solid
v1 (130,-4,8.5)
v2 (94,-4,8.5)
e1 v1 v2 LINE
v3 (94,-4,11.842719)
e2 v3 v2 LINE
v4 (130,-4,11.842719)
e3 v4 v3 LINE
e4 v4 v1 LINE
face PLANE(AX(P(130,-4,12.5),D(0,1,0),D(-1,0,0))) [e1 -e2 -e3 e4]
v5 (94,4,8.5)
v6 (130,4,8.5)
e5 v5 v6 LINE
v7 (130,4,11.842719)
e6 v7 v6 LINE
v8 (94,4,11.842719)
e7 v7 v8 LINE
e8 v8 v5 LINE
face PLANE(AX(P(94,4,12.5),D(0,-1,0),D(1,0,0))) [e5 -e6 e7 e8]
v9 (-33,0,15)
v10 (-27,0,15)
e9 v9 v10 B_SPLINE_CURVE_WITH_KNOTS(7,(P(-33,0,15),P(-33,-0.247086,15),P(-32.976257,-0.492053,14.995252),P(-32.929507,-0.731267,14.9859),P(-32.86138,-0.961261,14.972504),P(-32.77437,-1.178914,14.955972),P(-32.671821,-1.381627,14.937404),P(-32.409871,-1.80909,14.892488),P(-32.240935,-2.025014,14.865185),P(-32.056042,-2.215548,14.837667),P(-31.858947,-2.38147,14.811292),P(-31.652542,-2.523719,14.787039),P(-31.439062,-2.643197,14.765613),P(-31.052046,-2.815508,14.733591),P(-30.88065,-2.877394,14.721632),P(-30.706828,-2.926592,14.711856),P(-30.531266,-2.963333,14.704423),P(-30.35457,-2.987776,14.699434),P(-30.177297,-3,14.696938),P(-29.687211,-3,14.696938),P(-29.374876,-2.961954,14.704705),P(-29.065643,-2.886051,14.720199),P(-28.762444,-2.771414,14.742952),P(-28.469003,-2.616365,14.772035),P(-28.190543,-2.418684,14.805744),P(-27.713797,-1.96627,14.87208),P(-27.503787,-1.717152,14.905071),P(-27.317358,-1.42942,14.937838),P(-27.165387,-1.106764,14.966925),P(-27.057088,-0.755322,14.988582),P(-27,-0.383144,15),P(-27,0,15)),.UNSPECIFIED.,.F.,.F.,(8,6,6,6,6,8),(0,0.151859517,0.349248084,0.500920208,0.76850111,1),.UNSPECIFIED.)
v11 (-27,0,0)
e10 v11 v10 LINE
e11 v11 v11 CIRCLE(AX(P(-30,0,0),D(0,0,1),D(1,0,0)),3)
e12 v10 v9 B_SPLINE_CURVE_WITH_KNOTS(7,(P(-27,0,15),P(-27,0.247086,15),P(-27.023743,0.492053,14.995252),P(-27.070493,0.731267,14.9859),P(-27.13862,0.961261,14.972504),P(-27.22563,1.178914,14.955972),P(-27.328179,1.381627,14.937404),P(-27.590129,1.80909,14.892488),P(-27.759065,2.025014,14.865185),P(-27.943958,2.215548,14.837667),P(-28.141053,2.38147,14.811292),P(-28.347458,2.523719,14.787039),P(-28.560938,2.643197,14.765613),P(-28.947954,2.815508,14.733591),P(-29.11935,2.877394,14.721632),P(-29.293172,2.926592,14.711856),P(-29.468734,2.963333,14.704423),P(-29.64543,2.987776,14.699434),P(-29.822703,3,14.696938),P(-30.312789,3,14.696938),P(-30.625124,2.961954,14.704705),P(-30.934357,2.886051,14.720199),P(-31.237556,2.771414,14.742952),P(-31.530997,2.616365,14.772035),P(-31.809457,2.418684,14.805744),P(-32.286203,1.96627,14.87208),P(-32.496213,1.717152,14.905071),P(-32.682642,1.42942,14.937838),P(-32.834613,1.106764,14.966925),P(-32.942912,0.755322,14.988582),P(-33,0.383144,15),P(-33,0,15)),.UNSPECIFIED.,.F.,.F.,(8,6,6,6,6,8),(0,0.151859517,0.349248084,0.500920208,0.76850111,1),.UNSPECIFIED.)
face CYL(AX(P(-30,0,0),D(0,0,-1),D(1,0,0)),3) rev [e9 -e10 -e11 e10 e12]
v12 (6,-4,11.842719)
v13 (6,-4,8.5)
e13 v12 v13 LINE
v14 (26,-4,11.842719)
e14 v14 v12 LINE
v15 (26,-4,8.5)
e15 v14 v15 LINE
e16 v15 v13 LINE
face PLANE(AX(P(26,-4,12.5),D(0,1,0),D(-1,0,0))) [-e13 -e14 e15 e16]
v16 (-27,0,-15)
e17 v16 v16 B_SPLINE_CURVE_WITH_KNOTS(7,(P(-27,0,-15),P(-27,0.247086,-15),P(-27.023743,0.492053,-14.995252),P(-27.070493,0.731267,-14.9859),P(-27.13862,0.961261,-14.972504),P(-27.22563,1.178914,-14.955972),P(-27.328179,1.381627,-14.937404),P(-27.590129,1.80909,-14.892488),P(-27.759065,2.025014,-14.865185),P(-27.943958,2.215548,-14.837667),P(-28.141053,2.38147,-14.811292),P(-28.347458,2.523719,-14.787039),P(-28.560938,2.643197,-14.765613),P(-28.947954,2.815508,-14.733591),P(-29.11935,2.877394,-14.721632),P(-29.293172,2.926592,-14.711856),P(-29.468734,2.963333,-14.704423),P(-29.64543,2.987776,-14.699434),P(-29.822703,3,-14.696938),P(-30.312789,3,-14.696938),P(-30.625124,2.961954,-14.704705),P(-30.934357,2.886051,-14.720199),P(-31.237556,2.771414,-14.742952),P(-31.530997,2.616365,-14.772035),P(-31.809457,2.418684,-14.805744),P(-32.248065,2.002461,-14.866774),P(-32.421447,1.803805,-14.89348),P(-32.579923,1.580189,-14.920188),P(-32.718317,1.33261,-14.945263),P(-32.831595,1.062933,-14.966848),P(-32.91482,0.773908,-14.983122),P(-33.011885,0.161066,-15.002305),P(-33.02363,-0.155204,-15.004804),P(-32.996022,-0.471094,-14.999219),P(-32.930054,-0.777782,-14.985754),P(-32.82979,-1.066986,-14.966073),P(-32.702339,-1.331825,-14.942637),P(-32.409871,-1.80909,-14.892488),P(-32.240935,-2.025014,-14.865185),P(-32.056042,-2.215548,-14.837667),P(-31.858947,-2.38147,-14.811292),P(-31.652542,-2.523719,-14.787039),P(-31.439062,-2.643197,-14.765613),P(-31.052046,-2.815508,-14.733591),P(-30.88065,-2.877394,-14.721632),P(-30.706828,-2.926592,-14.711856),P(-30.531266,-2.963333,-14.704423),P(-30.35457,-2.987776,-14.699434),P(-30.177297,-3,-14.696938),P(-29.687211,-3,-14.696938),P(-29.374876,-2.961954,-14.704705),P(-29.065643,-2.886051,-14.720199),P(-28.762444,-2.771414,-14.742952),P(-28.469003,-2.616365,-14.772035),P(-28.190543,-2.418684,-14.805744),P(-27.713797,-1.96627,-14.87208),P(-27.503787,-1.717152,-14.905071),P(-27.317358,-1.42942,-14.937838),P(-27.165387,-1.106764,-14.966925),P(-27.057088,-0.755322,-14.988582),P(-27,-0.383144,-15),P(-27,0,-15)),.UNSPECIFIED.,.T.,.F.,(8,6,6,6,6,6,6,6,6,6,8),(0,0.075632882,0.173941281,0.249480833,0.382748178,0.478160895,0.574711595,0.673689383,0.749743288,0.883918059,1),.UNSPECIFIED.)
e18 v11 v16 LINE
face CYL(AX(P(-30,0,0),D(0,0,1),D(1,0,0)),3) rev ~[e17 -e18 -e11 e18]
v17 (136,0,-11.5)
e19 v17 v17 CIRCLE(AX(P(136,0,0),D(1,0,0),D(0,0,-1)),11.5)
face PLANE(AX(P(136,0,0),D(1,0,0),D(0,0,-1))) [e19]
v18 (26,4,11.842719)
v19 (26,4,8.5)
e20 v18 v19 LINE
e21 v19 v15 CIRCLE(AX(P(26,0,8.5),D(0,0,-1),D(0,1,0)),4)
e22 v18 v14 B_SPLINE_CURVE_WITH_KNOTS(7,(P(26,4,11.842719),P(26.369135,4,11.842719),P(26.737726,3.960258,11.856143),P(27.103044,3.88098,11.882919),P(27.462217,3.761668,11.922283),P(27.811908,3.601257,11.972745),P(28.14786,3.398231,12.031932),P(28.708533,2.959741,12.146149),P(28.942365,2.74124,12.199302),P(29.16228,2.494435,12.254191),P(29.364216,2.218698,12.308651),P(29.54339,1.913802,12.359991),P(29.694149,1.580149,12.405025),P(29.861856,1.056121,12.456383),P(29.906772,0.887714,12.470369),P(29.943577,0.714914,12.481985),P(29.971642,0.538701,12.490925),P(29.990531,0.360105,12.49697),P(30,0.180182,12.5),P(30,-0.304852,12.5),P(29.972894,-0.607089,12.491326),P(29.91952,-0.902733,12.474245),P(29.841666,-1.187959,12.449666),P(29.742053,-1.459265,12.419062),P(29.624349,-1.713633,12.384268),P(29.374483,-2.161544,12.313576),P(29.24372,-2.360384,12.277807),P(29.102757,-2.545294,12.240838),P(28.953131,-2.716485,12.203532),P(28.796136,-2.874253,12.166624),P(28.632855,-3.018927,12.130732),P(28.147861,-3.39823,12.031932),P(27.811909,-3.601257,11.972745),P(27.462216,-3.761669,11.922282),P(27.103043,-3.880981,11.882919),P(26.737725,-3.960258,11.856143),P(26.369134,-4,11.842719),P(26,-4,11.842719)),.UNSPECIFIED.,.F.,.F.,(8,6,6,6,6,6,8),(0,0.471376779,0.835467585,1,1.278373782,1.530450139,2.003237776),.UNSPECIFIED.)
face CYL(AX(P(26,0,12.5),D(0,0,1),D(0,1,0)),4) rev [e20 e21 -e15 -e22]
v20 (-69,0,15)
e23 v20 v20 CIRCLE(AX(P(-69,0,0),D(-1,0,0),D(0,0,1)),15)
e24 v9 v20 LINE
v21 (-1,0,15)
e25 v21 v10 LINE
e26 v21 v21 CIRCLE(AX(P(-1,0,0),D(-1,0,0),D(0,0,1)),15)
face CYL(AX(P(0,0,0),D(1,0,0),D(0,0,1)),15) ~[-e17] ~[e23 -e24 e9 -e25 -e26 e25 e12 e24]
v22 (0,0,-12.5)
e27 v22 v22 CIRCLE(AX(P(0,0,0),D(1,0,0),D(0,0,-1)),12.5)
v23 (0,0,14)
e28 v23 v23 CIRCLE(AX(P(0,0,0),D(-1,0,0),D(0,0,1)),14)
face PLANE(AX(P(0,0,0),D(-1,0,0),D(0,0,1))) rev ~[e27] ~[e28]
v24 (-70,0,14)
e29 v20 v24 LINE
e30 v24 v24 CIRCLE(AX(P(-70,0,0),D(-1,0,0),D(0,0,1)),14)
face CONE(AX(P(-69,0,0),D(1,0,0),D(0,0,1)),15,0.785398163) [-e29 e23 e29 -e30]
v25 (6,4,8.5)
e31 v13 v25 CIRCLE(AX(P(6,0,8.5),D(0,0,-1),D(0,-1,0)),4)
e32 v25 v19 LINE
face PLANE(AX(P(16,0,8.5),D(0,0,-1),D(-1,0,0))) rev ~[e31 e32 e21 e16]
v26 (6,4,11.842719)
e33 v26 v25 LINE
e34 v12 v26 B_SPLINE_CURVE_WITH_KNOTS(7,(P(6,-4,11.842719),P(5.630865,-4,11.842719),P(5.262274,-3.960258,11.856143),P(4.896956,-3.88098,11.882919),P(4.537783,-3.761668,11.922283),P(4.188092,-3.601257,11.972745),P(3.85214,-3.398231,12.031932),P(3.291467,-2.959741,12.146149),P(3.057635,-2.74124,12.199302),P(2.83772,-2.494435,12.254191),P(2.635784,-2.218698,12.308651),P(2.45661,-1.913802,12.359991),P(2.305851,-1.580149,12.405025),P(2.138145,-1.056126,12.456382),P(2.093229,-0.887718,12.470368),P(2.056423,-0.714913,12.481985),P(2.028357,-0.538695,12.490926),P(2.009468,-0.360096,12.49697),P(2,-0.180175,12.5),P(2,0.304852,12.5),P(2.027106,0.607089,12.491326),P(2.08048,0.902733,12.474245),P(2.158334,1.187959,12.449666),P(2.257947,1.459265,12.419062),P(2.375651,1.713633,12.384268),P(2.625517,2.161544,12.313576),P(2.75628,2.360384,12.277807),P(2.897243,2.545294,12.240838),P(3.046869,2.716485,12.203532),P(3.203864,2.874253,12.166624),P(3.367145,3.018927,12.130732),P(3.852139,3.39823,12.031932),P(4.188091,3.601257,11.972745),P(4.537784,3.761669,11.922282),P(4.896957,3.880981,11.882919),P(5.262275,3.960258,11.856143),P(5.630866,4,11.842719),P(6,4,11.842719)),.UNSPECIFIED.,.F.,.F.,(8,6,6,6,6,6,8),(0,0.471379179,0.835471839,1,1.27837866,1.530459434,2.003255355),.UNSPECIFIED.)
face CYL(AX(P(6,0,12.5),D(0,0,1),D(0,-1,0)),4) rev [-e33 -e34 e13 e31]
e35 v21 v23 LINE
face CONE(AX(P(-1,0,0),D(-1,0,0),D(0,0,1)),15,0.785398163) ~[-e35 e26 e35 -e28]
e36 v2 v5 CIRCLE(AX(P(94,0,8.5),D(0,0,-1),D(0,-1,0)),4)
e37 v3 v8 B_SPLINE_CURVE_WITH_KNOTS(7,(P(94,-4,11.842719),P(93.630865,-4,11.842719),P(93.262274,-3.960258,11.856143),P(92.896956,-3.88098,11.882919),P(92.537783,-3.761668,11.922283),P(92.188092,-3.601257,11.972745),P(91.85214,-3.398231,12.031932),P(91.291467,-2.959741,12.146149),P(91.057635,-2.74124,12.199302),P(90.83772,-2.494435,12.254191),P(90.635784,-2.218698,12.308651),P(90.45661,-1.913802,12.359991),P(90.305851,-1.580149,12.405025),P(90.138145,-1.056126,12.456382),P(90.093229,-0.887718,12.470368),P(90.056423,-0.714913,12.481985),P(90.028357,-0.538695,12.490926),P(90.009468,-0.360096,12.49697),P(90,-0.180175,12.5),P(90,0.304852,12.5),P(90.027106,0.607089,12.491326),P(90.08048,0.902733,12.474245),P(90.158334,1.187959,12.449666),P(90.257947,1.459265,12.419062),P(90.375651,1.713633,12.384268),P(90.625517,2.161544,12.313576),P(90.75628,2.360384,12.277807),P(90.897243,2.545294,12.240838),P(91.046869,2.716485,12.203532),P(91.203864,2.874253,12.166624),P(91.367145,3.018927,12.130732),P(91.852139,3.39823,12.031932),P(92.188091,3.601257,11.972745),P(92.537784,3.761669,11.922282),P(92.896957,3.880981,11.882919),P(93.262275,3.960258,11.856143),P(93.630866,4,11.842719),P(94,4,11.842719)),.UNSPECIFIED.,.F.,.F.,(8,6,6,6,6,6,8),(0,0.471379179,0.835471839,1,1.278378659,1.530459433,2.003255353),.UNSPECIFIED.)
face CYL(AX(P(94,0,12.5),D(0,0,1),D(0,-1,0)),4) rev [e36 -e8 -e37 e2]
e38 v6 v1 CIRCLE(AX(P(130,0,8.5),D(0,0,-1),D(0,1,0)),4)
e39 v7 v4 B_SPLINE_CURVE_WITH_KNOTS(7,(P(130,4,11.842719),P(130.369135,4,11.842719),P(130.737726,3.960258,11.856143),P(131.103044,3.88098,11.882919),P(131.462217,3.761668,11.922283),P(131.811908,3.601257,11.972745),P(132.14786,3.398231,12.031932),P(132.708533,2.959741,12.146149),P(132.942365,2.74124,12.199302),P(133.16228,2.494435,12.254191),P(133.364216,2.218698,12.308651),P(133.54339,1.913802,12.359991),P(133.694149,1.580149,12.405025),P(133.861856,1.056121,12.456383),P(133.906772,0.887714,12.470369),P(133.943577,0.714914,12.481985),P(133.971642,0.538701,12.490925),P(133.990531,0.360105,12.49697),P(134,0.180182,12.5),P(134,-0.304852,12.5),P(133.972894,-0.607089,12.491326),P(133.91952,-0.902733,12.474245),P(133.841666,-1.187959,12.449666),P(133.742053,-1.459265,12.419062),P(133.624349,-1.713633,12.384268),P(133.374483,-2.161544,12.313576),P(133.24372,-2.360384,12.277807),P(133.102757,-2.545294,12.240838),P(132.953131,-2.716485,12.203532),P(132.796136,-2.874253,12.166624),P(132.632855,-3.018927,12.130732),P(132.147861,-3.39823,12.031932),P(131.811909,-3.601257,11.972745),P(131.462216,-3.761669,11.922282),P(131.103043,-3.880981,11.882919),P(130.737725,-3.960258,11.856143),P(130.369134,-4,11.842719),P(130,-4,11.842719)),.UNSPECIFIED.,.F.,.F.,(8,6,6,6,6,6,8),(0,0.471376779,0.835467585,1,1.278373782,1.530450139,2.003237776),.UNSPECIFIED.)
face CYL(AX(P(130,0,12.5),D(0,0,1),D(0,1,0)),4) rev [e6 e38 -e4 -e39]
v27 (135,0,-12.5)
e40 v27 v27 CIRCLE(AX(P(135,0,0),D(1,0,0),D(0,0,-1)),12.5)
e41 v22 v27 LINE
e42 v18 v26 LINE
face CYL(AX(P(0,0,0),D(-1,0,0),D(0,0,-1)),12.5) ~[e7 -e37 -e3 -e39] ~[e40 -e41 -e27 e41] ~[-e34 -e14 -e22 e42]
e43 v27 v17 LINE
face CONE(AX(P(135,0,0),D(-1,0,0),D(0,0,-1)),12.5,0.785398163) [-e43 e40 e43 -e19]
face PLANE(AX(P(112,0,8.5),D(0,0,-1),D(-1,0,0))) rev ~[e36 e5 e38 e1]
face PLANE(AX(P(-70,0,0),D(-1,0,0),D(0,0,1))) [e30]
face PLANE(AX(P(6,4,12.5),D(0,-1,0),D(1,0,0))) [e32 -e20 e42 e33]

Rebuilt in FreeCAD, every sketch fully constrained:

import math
import FreeCAD as App
import Part
import Sketcher
Q = App.Units.Quantity


def edges_at(feature, points):
    """Names of the edges that pass closest to the given points."""
    edges = feature.Shape.Edges
    near = lambda p: min(range(len(edges)), key=lambda i: edges[i].distToShape(Part.Vertex(*p))[0])
    return sorted({f"Edge{near(p) + 1}" for p in points})

doc = App.newDocument("Part")
body = doc.addObject("PartDesign::Body", "Body")

# Sketch on YZ plane
sketch1 = doc.addObject("Sketcher::SketchObject", "Sketch")
body.addObject(sketch1)
sketch1.AttachmentSupport = (doc.YZ_Plane, [""])
sketch1.MapMode = "FlatFace"
sketch1.addGeometry(Part.Circle(App.Vector(0, 0, 0), App.Vector(0, 0, 1), 12.5), False)
sketch1.addConstraint([
    Sketcher.Constraint("Coincident", 0, 3, -1, 1),
    Sketcher.Constraint("Diameter", 0, Q("25 mm")),
])
pad1 = doc.addObject("PartDesign::Pad", "Pad")
body.addObject(pad1)
pad1.Profile = sketch1
pad1.Length = 136

# Sketch on YZ plane
sketch2 = doc.addObject("Sketcher::SketchObject", "Sketch001")
body.addObject(sketch2)
sketch2.AttachmentSupport = (doc.YZ_Plane, [""])
sketch2.MapMode = "FlatFace"
sketch2.addGeometry(Part.Circle(App.Vector(0, 0, 0), App.Vector(0, 0, 1), 15), False)
sketch2.addConstraint([
    Sketcher.Constraint("Coincident", 0, 3, -1, 1),
    Sketcher.Constraint("Diameter", 0, Q("30 mm")),
])
pad2 = doc.addObject("PartDesign::Pad", "Pad001")
body.addObject(pad2)
pad2.Profile = sketch2
pad2.Length = 70
pad2.Reversed = True
doc.recompute()

chamfer = doc.addObject("PartDesign::Chamfer", "Chamfer")
body.addObject(chamfer)
chamfer.Base = (pad2, edges_at(pad2, [(136, 0, 12.5), (0, 0, -15), (-70, 0, -15)]))
chamfer.Size = 1

# Sketch on XY plane
sketch3 = doc.addObject("Sketcher::SketchObject", "Sketch002")
body.addObject(sketch3)
sketch3.AttachmentSupport = (doc.XY_Plane, [""])
sketch3.MapMode = "FlatFace"
sketch3.AttachmentOffset = App.Placement(App.Vector(0, 0, 12.5), App.Rotation())
sketch3.addGeometry([
    Part.LineSegment(App.Vector(26, 4, 0), App.Vector(6, 4, 0)),  # 0
    Part.ArcOfCircle(Part.Circle(App.Vector(6, 0, 0), App.Vector(0, 0, 1), 4), math.radians(90), math.radians(270)),  # 1
    Part.LineSegment(App.Vector(6, -4, 0), App.Vector(26, -4, 0)),  # 2
    Part.ArcOfCircle(Part.Circle(App.Vector(26, 0, 0), App.Vector(0, 0, 1), 4), math.radians(-90), math.radians(90)),  # 3
    Part.LineSegment(App.Vector(130, 4, 0), App.Vector(94, 4, 0)),  # 4
    Part.ArcOfCircle(Part.Circle(App.Vector(94, 0, 0), App.Vector(0, 0, 1), 4), math.radians(90), math.radians(270)),  # 5
    Part.LineSegment(App.Vector(94, -4, 0), App.Vector(130, -4, 0)),  # 6
    Part.ArcOfCircle(Part.Circle(App.Vector(130, 0, 0), App.Vector(0, 0, 1), 4), math.radians(-90), math.radians(90)),  # 7
], False)
sketch3.addConstraint([
    Sketcher.Constraint("Tangent", 0, 2, 1, 1),
    Sketcher.Constraint("Tangent", 1, 2, 2, 1),
    Sketcher.Constraint("Tangent", 2, 2, 3, 1),
    Sketcher.Constraint("Tangent", 3, 2, 0, 1),
    Sketcher.Constraint("Tangent", 4, 2, 5, 1),
    Sketcher.Constraint("Tangent", 5, 2, 6, 1),
    Sketcher.Constraint("Tangent", 6, 2, 7, 1),
    Sketcher.Constraint("Tangent", 7, 2, 4, 1),
    Sketcher.Constraint("Horizontal", 0),
    Sketcher.Constraint("Horizontal", 2),
    Sketcher.Constraint("Horizontal", 4),
    Sketcher.Constraint("Horizontal", 6),
    Sketcher.Constraint("Equal", 3, 5),
    Sketcher.Constraint("PointOnObject", 1, 3, -1),
    Sketcher.Constraint("PointOnObject", 5, 3, -1),
    Sketcher.Constraint("Radius", 1, Q("4 mm")),
    Sketcher.Constraint("DistanceX", 0, 2, 0, 1, Q("20 mm")),
    Sketcher.Constraint("DistanceX", 4, 2, 4, 1, Q("36 mm")),
    Sketcher.Constraint("DistanceX", -1, 1, 1, 3, Q("6 mm")),
    Sketcher.Constraint("DistanceX", -1, 1, 5, 3, Q("94 mm")),
])
pocket1 = doc.addObject("PartDesign::Pocket", "Pocket")
body.addObject(pocket1)
pocket1.Profile = sketch3
pocket1.Length = 4

# Sketch on XY plane
sketch4 = doc.addObject("Sketcher::SketchObject", "Sketch003")
body.addObject(sketch4)
sketch4.AttachmentSupport = (doc.XY_Plane, [""])
sketch4.MapMode = "FlatFace"
sketch4.addGeometry(Part.Circle(App.Vector(-30, 0, 0), App.Vector(0, 0, 1), 3), False)
sketch4.addConstraint([
    Sketcher.Constraint("PointOnObject", 0, 3, -1),
    Sketcher.Constraint("Diameter", 0, Q("6 mm")),
    Sketcher.Constraint("DistanceX", 0, 3, -1, 1, Q("30 mm")),
])
pocket2 = doc.addObject("PartDesign::Pocket", "Pocket001")
body.addObject(pocket2)
pocket2.Profile = sketch4
pocket2.Type = "ThroughAll"
pocket2.Midplane = True

doc.recompute()
